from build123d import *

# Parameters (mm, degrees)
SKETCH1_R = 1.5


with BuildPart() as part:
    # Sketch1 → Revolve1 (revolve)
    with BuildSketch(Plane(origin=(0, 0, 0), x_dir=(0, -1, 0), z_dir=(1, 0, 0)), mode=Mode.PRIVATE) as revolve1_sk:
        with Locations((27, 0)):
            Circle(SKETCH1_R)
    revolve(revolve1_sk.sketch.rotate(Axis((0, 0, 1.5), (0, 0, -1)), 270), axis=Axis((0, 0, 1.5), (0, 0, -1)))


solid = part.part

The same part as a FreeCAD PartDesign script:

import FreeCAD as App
import Part
import Sketcher
from FreeCAD import Vector

doc = App.newDocument("Part")
body = doc.addObject("PartDesign::Body", "Body")

# Sketch on YZ plane
sketch1 = body.newObject("Sketcher::SketchObject", "Sketch")
sketch1.AttachmentSupport = (doc.getObject("YZ_Plane"), [""])
sketch1.MapMode = "FlatFace"
sketch1.addGeometry(Part.Circle(Vector(-27, 0, 0), Vector(0, 0, 1), 1.5), False)
sketch1.addConstraint(Sketcher.Constraint("PointOnObject", 0, 3, -1))
sketch1.addConstraint(Sketcher.Constraint("Diameter", 0, 3.0))
sketch1.addConstraint(Sketcher.Constraint("DistanceX", 0, 3, -1, 1, 27.0))
revolution = body.newObject("PartDesign::Revolution", "Revolution")
revolution.Profile = sketch1
revolution.ReferenceAxis = (sketch1, ["V_Axis"])
revolution.Angle = 360

doc.recompute()
